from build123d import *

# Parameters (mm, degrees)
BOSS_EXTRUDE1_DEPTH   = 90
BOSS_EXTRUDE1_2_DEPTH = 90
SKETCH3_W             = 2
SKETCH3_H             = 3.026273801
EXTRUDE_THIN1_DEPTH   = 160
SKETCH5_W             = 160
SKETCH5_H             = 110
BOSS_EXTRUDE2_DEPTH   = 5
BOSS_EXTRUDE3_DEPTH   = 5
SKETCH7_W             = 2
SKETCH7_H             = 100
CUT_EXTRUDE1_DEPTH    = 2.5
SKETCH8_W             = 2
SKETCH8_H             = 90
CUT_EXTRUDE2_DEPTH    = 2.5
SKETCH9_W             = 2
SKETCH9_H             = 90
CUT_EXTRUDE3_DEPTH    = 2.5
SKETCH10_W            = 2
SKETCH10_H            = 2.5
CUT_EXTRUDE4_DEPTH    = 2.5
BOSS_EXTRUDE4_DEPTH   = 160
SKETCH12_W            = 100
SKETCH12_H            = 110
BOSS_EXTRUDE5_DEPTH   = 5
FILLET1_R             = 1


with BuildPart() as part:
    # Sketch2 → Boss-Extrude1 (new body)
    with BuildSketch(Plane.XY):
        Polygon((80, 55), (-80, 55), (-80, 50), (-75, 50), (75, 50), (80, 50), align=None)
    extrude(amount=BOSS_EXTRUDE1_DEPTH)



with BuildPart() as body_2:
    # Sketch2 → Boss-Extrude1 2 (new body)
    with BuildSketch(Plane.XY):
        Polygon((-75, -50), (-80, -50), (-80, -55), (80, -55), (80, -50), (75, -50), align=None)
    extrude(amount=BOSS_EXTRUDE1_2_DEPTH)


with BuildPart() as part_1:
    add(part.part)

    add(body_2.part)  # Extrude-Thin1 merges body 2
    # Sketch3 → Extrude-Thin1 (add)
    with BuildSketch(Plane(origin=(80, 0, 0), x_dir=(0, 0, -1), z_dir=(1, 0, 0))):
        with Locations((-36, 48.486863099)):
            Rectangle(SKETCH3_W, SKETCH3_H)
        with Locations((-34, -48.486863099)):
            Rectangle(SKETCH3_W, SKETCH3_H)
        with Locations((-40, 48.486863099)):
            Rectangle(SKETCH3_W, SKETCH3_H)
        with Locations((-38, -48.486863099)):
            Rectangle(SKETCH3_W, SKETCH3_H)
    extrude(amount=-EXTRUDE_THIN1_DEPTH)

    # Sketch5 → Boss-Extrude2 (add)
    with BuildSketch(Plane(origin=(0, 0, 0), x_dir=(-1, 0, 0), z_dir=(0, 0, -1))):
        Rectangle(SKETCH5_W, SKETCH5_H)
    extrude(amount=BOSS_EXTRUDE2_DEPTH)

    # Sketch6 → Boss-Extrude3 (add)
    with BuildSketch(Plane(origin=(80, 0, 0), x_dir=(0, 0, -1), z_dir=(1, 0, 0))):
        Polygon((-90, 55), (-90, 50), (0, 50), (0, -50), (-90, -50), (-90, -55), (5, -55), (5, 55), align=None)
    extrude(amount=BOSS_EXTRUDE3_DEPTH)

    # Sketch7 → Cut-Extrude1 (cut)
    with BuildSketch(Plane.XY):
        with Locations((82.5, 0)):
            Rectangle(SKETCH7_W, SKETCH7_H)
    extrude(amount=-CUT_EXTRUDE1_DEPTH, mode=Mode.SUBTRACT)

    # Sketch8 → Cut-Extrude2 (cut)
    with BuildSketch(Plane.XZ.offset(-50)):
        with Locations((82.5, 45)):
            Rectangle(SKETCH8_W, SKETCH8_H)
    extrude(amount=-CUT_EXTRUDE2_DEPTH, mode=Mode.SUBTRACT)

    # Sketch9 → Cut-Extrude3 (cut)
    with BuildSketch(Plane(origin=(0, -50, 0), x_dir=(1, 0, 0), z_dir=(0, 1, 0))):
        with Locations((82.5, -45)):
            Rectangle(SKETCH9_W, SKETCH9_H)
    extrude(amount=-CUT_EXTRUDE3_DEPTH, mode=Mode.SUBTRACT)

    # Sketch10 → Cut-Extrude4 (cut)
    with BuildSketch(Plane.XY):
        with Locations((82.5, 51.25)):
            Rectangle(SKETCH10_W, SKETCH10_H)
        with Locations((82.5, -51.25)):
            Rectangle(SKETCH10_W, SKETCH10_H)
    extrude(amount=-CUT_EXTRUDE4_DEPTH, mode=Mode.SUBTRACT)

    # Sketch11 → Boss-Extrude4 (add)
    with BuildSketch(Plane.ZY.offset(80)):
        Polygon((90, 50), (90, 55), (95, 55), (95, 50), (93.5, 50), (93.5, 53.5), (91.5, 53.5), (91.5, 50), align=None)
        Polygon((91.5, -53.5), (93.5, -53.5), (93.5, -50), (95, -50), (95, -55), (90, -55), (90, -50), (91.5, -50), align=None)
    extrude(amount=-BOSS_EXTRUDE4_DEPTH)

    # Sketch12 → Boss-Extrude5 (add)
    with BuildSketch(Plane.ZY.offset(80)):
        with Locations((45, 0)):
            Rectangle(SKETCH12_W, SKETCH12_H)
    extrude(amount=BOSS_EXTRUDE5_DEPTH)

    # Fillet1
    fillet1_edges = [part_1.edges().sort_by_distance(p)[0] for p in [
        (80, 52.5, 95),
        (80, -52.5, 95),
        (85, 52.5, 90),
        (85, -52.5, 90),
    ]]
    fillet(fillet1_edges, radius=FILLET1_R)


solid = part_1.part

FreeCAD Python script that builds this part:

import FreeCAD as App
import Part
import Sketcher

V = App.Vector


def edges_at(feature, points):
    """Names of the edges that pass closest to the given points."""
    edges = feature.Shape.Edges
    near = lambda p: min(range(len(edges)), key=lambda i: edges[i].distToShape(Part.Vertex(*p))[0])
    return sorted({f"Edge{near(p) + 1}" for p in points})


def add_polygon(sketch, points):
    """Adds a closed chain of lines whose ends are joined by coincident constraints."""
    first, n = sketch.GeometryCount, len(points)
    for a, b in zip(points, points[1:] + points[:1]):
        sketch.addGeometry(Part.LineSegment(App.Vector(*a, 0), App.Vector(*b, 0)), False)
    for i in range(n):
        sketch.addConstraint(Sketcher.Constraint("Coincident", first + i, 2, first + (i + 1) % n, 1))

doc = App.newDocument("Part")
body = doc.addObject("PartDesign::Body", "Body")

# Sketch on XY plane
sketch1 = body.newObject("Sketcher::SketchObject", "Sketch")
sketch1.AttachmentSupport = (doc.getObject("XY_Plane"), [""])
sketch1.MapMode = "FlatFace"
add_polygon(sketch1, [(80, 55), (-80, 55), (-80, 50), (80, 50)])  # lines 0-3
sketch1.addConstraint(Sketcher.Constraint("Horizontal", 0))
sketch1.addConstraint(Sketcher.Constraint("Vertical", 1))
sketch1.addConstraint(Sketcher.Constraint("Horizontal", 2))
sketch1.addConstraint(Sketcher.Constraint("Vertical", 3))
sketch1.addConstraint(Sketcher.Constraint("DistanceX", 0, 2, 0, 1, 160.0))
sketch1.addConstraint(Sketcher.Constraint("DistanceY", 1, 2, 1, 1, 5.0))
sketch1.addConstraint(Sketcher.Constraint("DistanceX", 0, 2, -1, 1, 80.0))
sketch1.addConstraint(Sketcher.Constraint("DistanceY", -1, 1, 0, 2, 55.0))
pad1 = body.newObject("PartDesign::Pad", "Pad")
pad1.Profile = sketch1
pad1.Length = 90
body2 = doc.addObject("PartDesign::Body", "Body001")

# Sketch on XY plane
sketch2 = body2.newObject("Sketcher::SketchObject", "Sketch001")
sketch2.AttachmentSupport = (doc.getObject("XY_Plane001"), [""])
sketch2.MapMode = "FlatFace"
add_polygon(sketch2, [(-80, -50), (-80, -55), (80, -55), (80, -50)])  # lines 0-3
sketch2.addConstraint(Sketcher.Constraint("Vertical", 0))
sketch2.addConstraint(Sketcher.Constraint("Horizontal", 1))
sketch2.addConstraint(Sketcher.Constraint("Vertical", 2))
sketch2.addConstraint(Sketcher.Constraint("Horizontal", 3))
sketch2.addConstraint(Sketcher.Constraint("DistanceX", 1, 1, 1, 2, 160.0))
sketch2.addConstraint(Sketcher.Constraint("DistanceY", 0, 2, 0, 1, 5.0))
sketch2.addConstraint(Sketcher.Constraint("DistanceX", 0, 2, -1, 1, 80.0))
sketch2.addConstraint(Sketcher.Constraint("DistanceY", 0, 2, -1, 1, 55.0))
pad2 = body2.newObject("PartDesign::Pad", "Pad001")
pad2.Profile = sketch2
pad2.Length = 90
body.AllowCompound = True
doc.recompute()

boolean = body.newObject("PartDesign::Boolean", "Boolean")
boolean.Type = "Fuse"
boolean.addObjects([body2])

# Sketch on YZ plane
sketch3 = body.newObject("Sketcher::SketchObject", "Sketch002")
sketch3.AttachmentSupport = (doc.getObject("YZ_Plane"), [""])
sketch3.MapMode = "FlatFace"
sketch3.AttachmentOffset = App.Placement(V(0, 0, 80), App.Rotation())
add_polygon(sketch3, [(50, 37), (47, 37), (47, 35), (50, 35)])  # lines 0-3
add_polygon(sketch3, [(-47, 35), (-50, 35), (-50, 33), (-47, 33)])  # lines 4-7
add_polygon(sketch3, [(50, 41), (47, 41), (47, 39), (50, 39)])  # lines 8-11
add_polygon(sketch3, [(-47, 39), (-50, 39), (-50, 37), (-47, 37)])  # lines 12-15
sketch3.addConstraint(Sketcher.Constraint("Horizontal", 0))
sketch3.addConstraint(Sketcher.Constraint("Vertical", 1))
sketch3.addConstraint(Sketcher.Constraint("Horizontal", 2))
sketch3.addConstraint(Sketcher.Constraint("Vertical", 3))
sketch3.addConstraint(Sketcher.Constraint("Horizontal", 4))
sketch3.addConstraint(Sketcher.Constraint("Vertical", 5))
sketch3.addConstraint(Sketcher.Constraint("Horizontal", 6))
sketch3.addConstraint(Sketcher.Constraint("Vertical", 7))
sketch3.addConstraint(Sketcher.Constraint("Horizontal", 8))
sketch3.addConstraint(Sketcher.Constraint("Vertical", 9))
sketch3.addConstraint(Sketcher.Constraint("Horizontal", 10))
sketch3.addConstraint(Sketcher.Constraint("Vertical", 11))
sketch3.addConstraint(Sketcher.Constraint("Horizontal", 12))
sketch3.addConstraint(Sketcher.Constraint("Vertical", 13))
sketch3.addConstraint(Sketcher.Constraint("Horizontal", 14))
sketch3.addConstraint(Sketcher.Constraint("Vertical", 15))
sketch3.addConstraint(Sketcher.Constraint("Symmetric", 2, 2, 4, 2, -2))
sketch3.addConstraint(Sketcher.Constraint("Symmetric", 10, 2, 12, 2, -2))
sketch3.addConstraint(Sketcher.Constraint("Symmetric", 3, 2, 13, 2, -2))
sketch3.addConstraint(Sketcher.Constraint("Vertical", 1, 2, 8, 2))
sketch3.addConstraint(Sketcher.Constraint("Vertical", 7, 2, 14, 2))
sketch3.addConstraint(Sketcher.Constraint("Equal", 2, 4))
sketch3.addConstraint(Sketcher.Constraint("Equal", 3, 5))
sketch3.addConstraint(Sketcher.Constraint("Equal", 7, 9))
sketch3.addConstraint(Sketcher.Constraint("Equal", 11, 13))
sketch3.addConstraint(Sketcher.Constraint("DistanceY", 1, 2, 1, 1, 2.0))
sketch3.addConstraint(Sketcher.Constraint("DistanceY", -1, 1, 0, 2, 37.0))
sketch3.addConstraint(Sketcher.Constraint("DistanceX", -1, 1, 2, 2, 50.0))
sketch3.addConstraint(Sketcher.Constraint("DistanceX", 0, 2, 0, 1, 3.026274))
pad3 = body.newObject("PartDesign::Pad", "Pad002")
pad3.Profile = sketch3
pad3.Length = 160
pad3.Reversed = True

# Sketch on XY plane
sketch4 = body.newObject("Sketcher::SketchObject", "Sketch003")
sketch4.AttachmentSupport = (doc.getObject("XY_Plane"), [""])
sketch4.MapMode = "FlatFace"
add_polygon(sketch4, [(80, 55), (80, -55), (-80, -55), (-80, 55)])  # lines 0-3
sketch4.addConstraint(Sketcher.Constraint("Vertical", 0))
sketch4.addConstraint(Sketcher.Constraint("Horizontal", 1))
sketch4.addConstraint(Sketcher.Constraint("Vertical", 2))
sketch4.addConstraint(Sketcher.Constraint("Horizontal", 3))
sketch4.addConstraint(Sketcher.Constraint("Symmetric", 0, 2, 2, 2, -1, 1))
sketch4.addConstraint(Sketcher.Constraint("DistanceX", 1, 2, 1, 1, 160.0))
sketch4.addConstraint(Sketcher.Constraint("DistanceY", 0, 2, 0, 1, 110.0))
pad4 = body.newObject("PartDesign::Pad", "Pad003")
pad4.Profile = sketch4
pad4.Length = 5
pad4.Reversed = True

# Sketch on YZ plane
sketch5 = body.newObject("Sketcher::SketchObject", "Sketch004")
sketch5.AttachmentSupport = (doc.getObject("YZ_Plane"), [""])
sketch5.MapMode = "FlatFace"
sketch5.AttachmentOffset = App.Placement(V(0, 0, 80), App.Rotation())
add_polygon(sketch5, [(55, 90), (50, 90), (50, 0), (-50, 0), (-50, 90), (-55, 90), (-55, -5), (55, -5)])  # lines 0-7
sketch5.addConstraint(Sketcher.Constraint("Horizontal", 0))
sketch5.addConstraint(Sketcher.Constraint("Vertical", 1))
sketch5.addConstraint(Sketcher.Constraint("Horizontal", 2))
sketch5.addConstraint(Sketcher.Constraint("Vertical", 3))
sketch5.addConstraint(Sketcher.Constraint("Horizontal", 4))
sketch5.addConstraint(Sketcher.Constraint("Vertical", 5))
sketch5.addConstraint(Sketcher.Constraint("Horizontal", 6))
sketch5.addConstraint(Sketcher.Constraint("Vertical", 7))
sketch5.addConstraint(Sketcher.Constraint("Symmetric", 1, 2, 2, 2, -1, 1))
sketch5.addConstraint(Sketcher.Constraint("Symmetric", 4, 2, 7, 2, -2))
sketch5.addConstraint(Sketcher.Constraint("DistanceX", 0, 2, 0, 1, 5.0))
sketch5.addConstraint(Sketcher.Constraint("DistanceX", 2, 2, 2, 1, 100.0))
sketch5.addConstraint(Sketcher.Constraint("DistanceY", 1, 2, 1, 1, 90.0))
sketch5.addConstraint(Sketcher.Constraint("DistanceY", 5, 2, 5, 1, 95.0))
pad5 = body.newObject("PartDesign::Pad", "Pad004")
pad5.Profile = sketch5
pad5.Length = 5

# Sketch on XY plane
sketch6 = body.newObject("Sketcher::SketchObject", "Sketch005")
sketch6.AttachmentSupport = (doc.getObject("XY_Plane"), [""])
sketch6.MapMode = "FlatFace"
add_polygon(sketch6, [(81.5, 50), (81.5, -50), (83.5, -50), (83.5, 50)])  # lines 0-3
sketch6.addConstraint(Sketcher.Constraint("Vertical", 0))
sketch6.addConstraint(Sketcher.Constraint("Horizontal", 1))
sketch6.addConstraint(Sketcher.Constraint("Vertical", 2))
sketch6.addConstraint(Sketcher.Constraint("Horizontal", 3))
sketch6.addConstraint(Sketcher.Constraint("DistanceX", 1, 1, 1, 2, 2.0))
sketch6.addConstraint(Sketcher.Constraint("DistanceY", 0, 2, 0, 1, 100.0))
sketch6.addConstraint(Sketcher.Constraint("DistanceY", 0, 2, -1, 1, 50.0))
sketch6.addConstraint(Sketcher.Constraint("DistanceX", -1, 1, 0, 2, 81.5))
pocket1 = body.newObject("PartDesign::Pocket", "Pocket")
pocket1.Profile = sketch6
pocket1.Length = 2.5

# Sketch on XZ plane
sketch7 = body.newObject("Sketcher::SketchObject", "Sketch006")
sketch7.AttachmentSupport = (doc.getObject("XZ_Plane"), [""])
sketch7.MapMode = "FlatFace"
sketch7.AttachmentOffset = App.Placement(V(0, 0, -50), App.Rotation())
add_polygon(sketch7, [(81.5, 90), (81.5, 0), (83.5, 0), (83.5, 90)])  # lines 0-3
sketch7.addConstraint(Sketcher.Constraint("Vertical", 0))
sketch7.addConstraint(Sketcher.Constraint("Horizontal", 1))
sketch7.addConstraint(Sketcher.Constraint("Vertical", 2))
sketch7.addConstraint(Sketcher.Constraint("Horizontal", 3))
sketch7.addConstraint(Sketcher.Constraint("PointOnObject", 0, 2, -1))
sketch7.addConstraint(Sketcher.Constraint("DistanceX", 1, 1, 1, 2, 2.0))
sketch7.addConstraint(Sketcher.Constraint("DistanceY", 0, 2, 0, 1, 90.0))
sketch7.addConstraint(Sketcher.Constraint("DistanceX", -1, 1, 0, 2, 81.5))
pocket2 = body.newObject("PartDesign::Pocket", "Pocket001")
pocket2.Profile = sketch7
pocket2.Length = 2.5

# Sketch on XZ plane
sketch8 = body.newObject("Sketcher::SketchObject", "Sketch007")
sketch8.AttachmentSupport = (doc.getObject("XZ_Plane"), [""])
sketch8.MapMode = "FlatFace"
sketch8.AttachmentOffset = App.Placement(V(0, 0, 50), App.Rotation())
add_polygon(sketch8, [(81.5, 0), (81.5, 90), (83.5, 90), (83.5, 0)])  # lines 0-3
sketch8.addConstraint(Sketcher.Constraint("Vertical", 0))
sketch8.addConstraint(Sketcher.Constraint("Horizontal", 1))
sketch8.addConstraint(Sketcher.Constraint("Vertical", 2))
sketch8.addConstraint(Sketcher.Constraint("Horizontal", 3))
sketch8.addConstraint(Sketcher.Constraint("PointOnObject", 2, 2, -1))
sketch8.addConstraint(Sketcher.Constraint("DistanceX", 1, 1, 1, 2, 2.0))
sketch8.addConstraint(Sketcher.Constraint("DistanceY", 0, 1, 0, 2, 90.0))
sketch8.addConstraint(Sketcher.Constraint("DistanceX", -1, 1, 0, 2, 81.5))
pocket3 = body.newObject("PartDesign::Pocket", "Pocket002")
pocket3.Profile = sketch8
pocket3.Length = 2.5
pocket3.Reversed = True

# Sketch on XY plane
sketch9 = body.newObject("Sketcher::SketchObject", "Sketch008")
sketch9.AttachmentSupport = (doc.getObject("XY_Plane"), [""])
sketch9.MapMode = "FlatFace"
add_polygon(sketch9, [(81.5, 52.5), (81.5, 50), (83.5, 50), (83.5, 52.5)])  # lines 0-3
add_polygon(sketch9, [(81.5, -50), (81.5, -52.5), (83.5, -52.5), (83.5, -50)])  # lines 4-7
sketch9.addConstraint(Sketcher.Constraint("Vertical", 0))
sketch9.addConstraint(Sketcher.Constraint("Horizontal", 1))
sketch9.addConstraint(Sketcher.Constraint("Vertical", 2))
sketch9.addConstraint(Sketcher.Constraint("Horizontal", 3))
sketch9.addConstraint(Sketcher.Constraint("Vertical", 4))
sketch9.addConstraint(Sketcher.Constraint("Horizontal", 5))
sketch9.addConstraint(Sketcher.Constraint("Vertical", 6))
sketch9.addConstraint(Sketcher.Constraint("Horizontal", 7))
sketch9.addConstraint(Sketcher.Constraint("Symmetric", 3, 2, 4, 2, -1))
sketch9.addConstraint(Sketcher.Constraint("Symmetric", 1, 2, 6, 2, -1))
sketch9.addConstraint(Sketcher.Constraint("DistanceX", 1, 1, 1, 2, 2.0))
sketch9.addConstraint(Sketcher.Constraint("DistanceY", 0, 2, 0, 1, 2.5))
sketch9.addConstraint(Sketcher.Constraint("DistanceY", -1, 1, 0, 2, 50.0))
sketch9.addConstraint(Sketcher.Constraint("DistanceX", -1, 1, 0, 2, 81.5))
pocket4 = body.newObject("PartDesign::Pocket", "Pocket003")
pocket4.Profile = sketch9
pocket4.Length = 2.5

# Sketch on YZ plane
sketch10 = body.newObject("Sketcher::SketchObject", "Sketch009")
sketch10.AttachmentSupport = (doc.getObject("YZ_Plane"), [""])
sketch10.MapMode = "FlatFace"
sketch10.AttachmentOffset = App.Placement(V(0, 0, -80), App.Rotation())
add_polygon(sketch10, [(55, 90), (50, 90), (50, 91.5), (53.5, 91.5), (53.5, 93.5), (50, 93.5), (50, 95), (55, 95)])  # lines 0-7
add_polygon(sketch10, [(-53.5, 93.5), (-53.5, 91.5), (-50, 91.5), (-50, 90), (-55, 90), (-55, 95), (-50, 95), (-50, 93.5)])  # lines 8-15
sketch10.addConstraint(Sketcher.Constraint("Horizontal", 0))
sketch10.addConstraint(Sketcher.Constraint("Vertical", 1))
sketch10.addConstraint(Sketcher.Constraint("Horizontal", 2))
sketch10.addConstraint(Sketcher.Constraint("Vertical", 3))
sketch10.addConstraint(Sketcher.Constraint("Horizontal", 4))
sketch10.addConstraint(Sketcher.Constraint("Vertical", 5))
sketch10.addConstraint(Sketcher.Constraint("Horizontal", 6))
sketch10.addConstraint(Sketcher.Constraint("Vertical", 7))
sketch10.addConstraint(Sketcher.Constraint("Vertical", 8))
sketch10.addConstraint(Sketcher.Constraint("Horizontal", 9))
sketch10.addConstraint(Sketcher.Constraint("Vertical", 10))
sketch10.addConstraint(Sketcher.Constraint("Horizontal", 11))
sketch10.addConstraint(Sketcher.Constraint("Vertical", 12))
sketch10.addConstraint(Sketcher.Constraint("Horizontal", 13))
sketch10.addConstraint(Sketcher.Constraint("Vertical", 14))
sketch10.addConstraint(Sketcher.Constraint("Horizontal", 15))
sketch10.addConstraint(Sketcher.Constraint("Symmetric", 2, 2, 8, 2, -2))
sketch10.addConstraint(Sketcher.Constraint("Symmetric", 0, 2, 10, 2, -2))
sketch10.addConstraint(Sketcher.Constraint("Symmetric", 6, 2, 12, 2, -2))
sketch10.addConstraint(Sketcher.Constraint("Symmetric", 4, 2, 14, 2, -2))
sketch10.addConstraint(Sketcher.Constraint("Vertical", 1, 2, 4, 2))
sketch10.addConstraint(Sketcher.Constraint("Equal", 1, 5))
sketch10.addConstraint(Sketcher.Constraint("Equal", 13, 7))
sketch10.addConstraint(Sketcher.Constraint("DistanceX", 0, 2, 0, 1, 5.0))
sketch10.addConstraint(Sketcher.Constraint("DistanceY", 3, 1, 3, 2, 2.0))
sketch10.addConstraint(Sketcher.Constraint("DistanceX", 2, 1, 2, 2, 3.5))
sketch10.addConstraint(Sketcher.Constraint("DistanceX", -1, 1, 0, 2, 50.0))
sketch10.addConstraint(Sketcher.Constraint("DistanceY", -1, 1, 0, 2, 90.0))
pad6 = body.newObject("PartDesign::Pad", "Pad005")
pad6.Profile = sketch10
pad6.Length = 160

# Sketch on YZ plane
sketch11 = body.newObject("Sketcher::SketchObject", "Sketch010")
sketch11.AttachmentSupport = (doc.getObject("YZ_Plane"), [""])
sketch11.MapMode = "FlatFace"
sketch11.AttachmentOffset = App.Placement(V(0, 0, -80), App.Rotation())
add_polygon(sketch11, [(55, -5), (-55, -5), (-55, 95), (55, 95)])  # lines 0-3
sketch11.addConstraint(Sketcher.Constraint("Horizontal", 0))
sketch11.addConstraint(Sketcher.Constraint("Vertical", 1))
sketch11.addConstraint(Sketcher.Constraint("Horizontal", 2))
sketch11.addConstraint(Sketcher.Constraint("Vertical", 3))
sketch11.addConstraint(Sketcher.Constraint("DistanceX", 0, 2, 0, 1, 110.0))
sketch11.addConstraint(Sketcher.Constraint("DistanceY", 1, 1, 1, 2, 100.0))
sketch11.addConstraint(Sketcher.Constraint("DistanceX", 0, 2, -1, 1, 55.0))
sketch11.addConstraint(Sketcher.Constraint("DistanceY", 0, 2, -1, 1, 5.0))
pad7 = body.newObject("PartDesign::Pad", "Pad006")
pad7.Profile = sketch11
pad7.Length = 5
pad7.Reversed = True
doc.recompute()

fillet = body.newObject("PartDesign::Fillet", "Fillet")
fillet.Base = (pad7, edges_at(pad7, [
    (80, 52.5, 95),
    (80, -52.5, 95),
    (85, 52.5, 90),
    (85, -52.5, 90),
]))
fillet.Radius = 1

doc.recompute()
